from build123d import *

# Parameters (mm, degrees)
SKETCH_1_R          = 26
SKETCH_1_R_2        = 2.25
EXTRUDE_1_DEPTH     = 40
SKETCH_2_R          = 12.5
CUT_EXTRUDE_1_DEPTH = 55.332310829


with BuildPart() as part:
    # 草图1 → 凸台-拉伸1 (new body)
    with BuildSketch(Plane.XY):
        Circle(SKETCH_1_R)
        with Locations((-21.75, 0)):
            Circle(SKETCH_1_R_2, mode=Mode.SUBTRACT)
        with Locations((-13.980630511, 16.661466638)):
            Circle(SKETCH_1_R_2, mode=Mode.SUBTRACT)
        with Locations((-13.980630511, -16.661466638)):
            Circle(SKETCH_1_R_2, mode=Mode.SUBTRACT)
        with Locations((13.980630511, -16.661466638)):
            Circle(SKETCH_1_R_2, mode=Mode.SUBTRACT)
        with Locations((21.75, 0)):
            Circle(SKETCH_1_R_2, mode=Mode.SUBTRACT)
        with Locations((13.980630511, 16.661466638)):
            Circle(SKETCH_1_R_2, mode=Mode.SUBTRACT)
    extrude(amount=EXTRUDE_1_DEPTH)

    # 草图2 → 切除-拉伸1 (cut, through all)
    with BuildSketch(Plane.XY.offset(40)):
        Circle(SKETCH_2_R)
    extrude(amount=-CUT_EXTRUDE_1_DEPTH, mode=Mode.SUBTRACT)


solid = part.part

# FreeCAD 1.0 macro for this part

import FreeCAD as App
import Part
import Sketcher

V = App.Vector
Q = App.Units.Quantity

doc = App.newDocument("Part")
body = doc.addObject("PartDesign::Body", "Body")

sketch1 = body.newObject("Sketcher::SketchObject", "Sketch")
sketch1.AttachmentSupport = (doc.getObject("XY_Plane"), [""])
sketch1.MapMode = "FlatFace"
sketch1.addGeometry(Part.Circle(V(0, 0, 0), V(0, 0, 1), 26), False)
sketch1.addGeometry(Part.Circle(V(-14, -16.7, 0), V(0, 0, 1), 2.2), False)
sketch1.addGeometry(Part.Circle(V(14, -16.7, 0), V(0, 0, 1), 2.2), False)
sketch1.addGeometry(Part.Circle(V(-21.8, 0, 0), V(0, 0, 1), 2.2), False)
sketch1.addGeometry(Part.Circle(V(-14, 16.7, 0), V(0, 0, 1), 2.2), False)
sketch1.addGeometry(Part.Circle(V(21.8, 0, 0), V(0, 0, 1), 2.2), False)
sketch1.addGeometry(Part.Circle(V(14, 16.7, 0), V(0, 0, 1), 2.2), False)
sketch1.addConstraint(Sketcher.Constraint("Coincident", 0, 3, -1, 1))
sketch1.addConstraint(Sketcher.Constraint("Equal", 1, 2))
sketch1.addConstraint(Sketcher.Constraint("Equal", 2, 3))
sketch1.addConstraint(Sketcher.Constraint("Equal", 3, 4))
sketch1.addConstraint(Sketcher.Constraint("Equal", 4, 5))
sketch1.addConstraint(Sketcher.Constraint("Equal", 5, 6))
sketch1.addConstraint(Sketcher.Constraint("Symmetric", 2, 3, 4, 3, -1, 1))
sketch1.addConstraint(Sketcher.Constraint("Symmetric", 3, 3, 5, 3, -1, 1))
sketch1.addConstraint(Sketcher.Constraint("Symmetric", 1, 3, 6, 3, -1, 1))
sketch1.addConstraint(Sketcher.Constraint("Symmetric", 1, 3, 2, 3, -2))
sketch1.addConstraint(Sketcher.Constraint("PointOnObject", 3, 3, -1))
sketch1.addConstraint(Sketcher.Constraint("Diameter", 0, Q("52 mm")))
sketch1.addConstraint(Sketcher.Constraint("Diameter", 1, Q("4.5 mm")))
sketch1.addConstraint(Sketcher.Constraint("DistanceX", 3, 3, 5, 3, Q("43.5 mm")))
sketch1.addConstraint(Sketcher.Constraint("DistanceX", 1, 3, -1, 1, Q("13.980631 mm")))
sketch1.addConstraint(Sketcher.Constraint("DistanceY", 1, 3, -1, 1, Q("16.661467 mm")))
pad1 = body.newObject("PartDesign::Pad", "Pad")
pad1.Profile = sketch1
pad1.Length = 40

sketch2 = body.newObject("Sketcher::SketchObject", "Sketch001")
sketch2.AttachmentSupport = (doc.getObject("XY_Plane"), [""])
sketch2.MapMode = "FlatFace"
sketch2.AttachmentOffset = App.Placement(V(0, 0, 40), App.Rotation())
sketch2.addGeometry(Part.Circle(V(0, 0, 0), V(0, 0, 1), 12), False)
sketch2.addConstraint(Sketcher.Constraint("Coincident", 0, 3, -1, 1))
sketch2.addConstraint(Sketcher.Constraint("Diameter", 0, Q("25 mm")))
pocket1 = body.newObject("PartDesign::Pocket", "Pocket")
pocket1.Profile = sketch2
pocket1.Type = "ThroughAll"

doc.recompute()
